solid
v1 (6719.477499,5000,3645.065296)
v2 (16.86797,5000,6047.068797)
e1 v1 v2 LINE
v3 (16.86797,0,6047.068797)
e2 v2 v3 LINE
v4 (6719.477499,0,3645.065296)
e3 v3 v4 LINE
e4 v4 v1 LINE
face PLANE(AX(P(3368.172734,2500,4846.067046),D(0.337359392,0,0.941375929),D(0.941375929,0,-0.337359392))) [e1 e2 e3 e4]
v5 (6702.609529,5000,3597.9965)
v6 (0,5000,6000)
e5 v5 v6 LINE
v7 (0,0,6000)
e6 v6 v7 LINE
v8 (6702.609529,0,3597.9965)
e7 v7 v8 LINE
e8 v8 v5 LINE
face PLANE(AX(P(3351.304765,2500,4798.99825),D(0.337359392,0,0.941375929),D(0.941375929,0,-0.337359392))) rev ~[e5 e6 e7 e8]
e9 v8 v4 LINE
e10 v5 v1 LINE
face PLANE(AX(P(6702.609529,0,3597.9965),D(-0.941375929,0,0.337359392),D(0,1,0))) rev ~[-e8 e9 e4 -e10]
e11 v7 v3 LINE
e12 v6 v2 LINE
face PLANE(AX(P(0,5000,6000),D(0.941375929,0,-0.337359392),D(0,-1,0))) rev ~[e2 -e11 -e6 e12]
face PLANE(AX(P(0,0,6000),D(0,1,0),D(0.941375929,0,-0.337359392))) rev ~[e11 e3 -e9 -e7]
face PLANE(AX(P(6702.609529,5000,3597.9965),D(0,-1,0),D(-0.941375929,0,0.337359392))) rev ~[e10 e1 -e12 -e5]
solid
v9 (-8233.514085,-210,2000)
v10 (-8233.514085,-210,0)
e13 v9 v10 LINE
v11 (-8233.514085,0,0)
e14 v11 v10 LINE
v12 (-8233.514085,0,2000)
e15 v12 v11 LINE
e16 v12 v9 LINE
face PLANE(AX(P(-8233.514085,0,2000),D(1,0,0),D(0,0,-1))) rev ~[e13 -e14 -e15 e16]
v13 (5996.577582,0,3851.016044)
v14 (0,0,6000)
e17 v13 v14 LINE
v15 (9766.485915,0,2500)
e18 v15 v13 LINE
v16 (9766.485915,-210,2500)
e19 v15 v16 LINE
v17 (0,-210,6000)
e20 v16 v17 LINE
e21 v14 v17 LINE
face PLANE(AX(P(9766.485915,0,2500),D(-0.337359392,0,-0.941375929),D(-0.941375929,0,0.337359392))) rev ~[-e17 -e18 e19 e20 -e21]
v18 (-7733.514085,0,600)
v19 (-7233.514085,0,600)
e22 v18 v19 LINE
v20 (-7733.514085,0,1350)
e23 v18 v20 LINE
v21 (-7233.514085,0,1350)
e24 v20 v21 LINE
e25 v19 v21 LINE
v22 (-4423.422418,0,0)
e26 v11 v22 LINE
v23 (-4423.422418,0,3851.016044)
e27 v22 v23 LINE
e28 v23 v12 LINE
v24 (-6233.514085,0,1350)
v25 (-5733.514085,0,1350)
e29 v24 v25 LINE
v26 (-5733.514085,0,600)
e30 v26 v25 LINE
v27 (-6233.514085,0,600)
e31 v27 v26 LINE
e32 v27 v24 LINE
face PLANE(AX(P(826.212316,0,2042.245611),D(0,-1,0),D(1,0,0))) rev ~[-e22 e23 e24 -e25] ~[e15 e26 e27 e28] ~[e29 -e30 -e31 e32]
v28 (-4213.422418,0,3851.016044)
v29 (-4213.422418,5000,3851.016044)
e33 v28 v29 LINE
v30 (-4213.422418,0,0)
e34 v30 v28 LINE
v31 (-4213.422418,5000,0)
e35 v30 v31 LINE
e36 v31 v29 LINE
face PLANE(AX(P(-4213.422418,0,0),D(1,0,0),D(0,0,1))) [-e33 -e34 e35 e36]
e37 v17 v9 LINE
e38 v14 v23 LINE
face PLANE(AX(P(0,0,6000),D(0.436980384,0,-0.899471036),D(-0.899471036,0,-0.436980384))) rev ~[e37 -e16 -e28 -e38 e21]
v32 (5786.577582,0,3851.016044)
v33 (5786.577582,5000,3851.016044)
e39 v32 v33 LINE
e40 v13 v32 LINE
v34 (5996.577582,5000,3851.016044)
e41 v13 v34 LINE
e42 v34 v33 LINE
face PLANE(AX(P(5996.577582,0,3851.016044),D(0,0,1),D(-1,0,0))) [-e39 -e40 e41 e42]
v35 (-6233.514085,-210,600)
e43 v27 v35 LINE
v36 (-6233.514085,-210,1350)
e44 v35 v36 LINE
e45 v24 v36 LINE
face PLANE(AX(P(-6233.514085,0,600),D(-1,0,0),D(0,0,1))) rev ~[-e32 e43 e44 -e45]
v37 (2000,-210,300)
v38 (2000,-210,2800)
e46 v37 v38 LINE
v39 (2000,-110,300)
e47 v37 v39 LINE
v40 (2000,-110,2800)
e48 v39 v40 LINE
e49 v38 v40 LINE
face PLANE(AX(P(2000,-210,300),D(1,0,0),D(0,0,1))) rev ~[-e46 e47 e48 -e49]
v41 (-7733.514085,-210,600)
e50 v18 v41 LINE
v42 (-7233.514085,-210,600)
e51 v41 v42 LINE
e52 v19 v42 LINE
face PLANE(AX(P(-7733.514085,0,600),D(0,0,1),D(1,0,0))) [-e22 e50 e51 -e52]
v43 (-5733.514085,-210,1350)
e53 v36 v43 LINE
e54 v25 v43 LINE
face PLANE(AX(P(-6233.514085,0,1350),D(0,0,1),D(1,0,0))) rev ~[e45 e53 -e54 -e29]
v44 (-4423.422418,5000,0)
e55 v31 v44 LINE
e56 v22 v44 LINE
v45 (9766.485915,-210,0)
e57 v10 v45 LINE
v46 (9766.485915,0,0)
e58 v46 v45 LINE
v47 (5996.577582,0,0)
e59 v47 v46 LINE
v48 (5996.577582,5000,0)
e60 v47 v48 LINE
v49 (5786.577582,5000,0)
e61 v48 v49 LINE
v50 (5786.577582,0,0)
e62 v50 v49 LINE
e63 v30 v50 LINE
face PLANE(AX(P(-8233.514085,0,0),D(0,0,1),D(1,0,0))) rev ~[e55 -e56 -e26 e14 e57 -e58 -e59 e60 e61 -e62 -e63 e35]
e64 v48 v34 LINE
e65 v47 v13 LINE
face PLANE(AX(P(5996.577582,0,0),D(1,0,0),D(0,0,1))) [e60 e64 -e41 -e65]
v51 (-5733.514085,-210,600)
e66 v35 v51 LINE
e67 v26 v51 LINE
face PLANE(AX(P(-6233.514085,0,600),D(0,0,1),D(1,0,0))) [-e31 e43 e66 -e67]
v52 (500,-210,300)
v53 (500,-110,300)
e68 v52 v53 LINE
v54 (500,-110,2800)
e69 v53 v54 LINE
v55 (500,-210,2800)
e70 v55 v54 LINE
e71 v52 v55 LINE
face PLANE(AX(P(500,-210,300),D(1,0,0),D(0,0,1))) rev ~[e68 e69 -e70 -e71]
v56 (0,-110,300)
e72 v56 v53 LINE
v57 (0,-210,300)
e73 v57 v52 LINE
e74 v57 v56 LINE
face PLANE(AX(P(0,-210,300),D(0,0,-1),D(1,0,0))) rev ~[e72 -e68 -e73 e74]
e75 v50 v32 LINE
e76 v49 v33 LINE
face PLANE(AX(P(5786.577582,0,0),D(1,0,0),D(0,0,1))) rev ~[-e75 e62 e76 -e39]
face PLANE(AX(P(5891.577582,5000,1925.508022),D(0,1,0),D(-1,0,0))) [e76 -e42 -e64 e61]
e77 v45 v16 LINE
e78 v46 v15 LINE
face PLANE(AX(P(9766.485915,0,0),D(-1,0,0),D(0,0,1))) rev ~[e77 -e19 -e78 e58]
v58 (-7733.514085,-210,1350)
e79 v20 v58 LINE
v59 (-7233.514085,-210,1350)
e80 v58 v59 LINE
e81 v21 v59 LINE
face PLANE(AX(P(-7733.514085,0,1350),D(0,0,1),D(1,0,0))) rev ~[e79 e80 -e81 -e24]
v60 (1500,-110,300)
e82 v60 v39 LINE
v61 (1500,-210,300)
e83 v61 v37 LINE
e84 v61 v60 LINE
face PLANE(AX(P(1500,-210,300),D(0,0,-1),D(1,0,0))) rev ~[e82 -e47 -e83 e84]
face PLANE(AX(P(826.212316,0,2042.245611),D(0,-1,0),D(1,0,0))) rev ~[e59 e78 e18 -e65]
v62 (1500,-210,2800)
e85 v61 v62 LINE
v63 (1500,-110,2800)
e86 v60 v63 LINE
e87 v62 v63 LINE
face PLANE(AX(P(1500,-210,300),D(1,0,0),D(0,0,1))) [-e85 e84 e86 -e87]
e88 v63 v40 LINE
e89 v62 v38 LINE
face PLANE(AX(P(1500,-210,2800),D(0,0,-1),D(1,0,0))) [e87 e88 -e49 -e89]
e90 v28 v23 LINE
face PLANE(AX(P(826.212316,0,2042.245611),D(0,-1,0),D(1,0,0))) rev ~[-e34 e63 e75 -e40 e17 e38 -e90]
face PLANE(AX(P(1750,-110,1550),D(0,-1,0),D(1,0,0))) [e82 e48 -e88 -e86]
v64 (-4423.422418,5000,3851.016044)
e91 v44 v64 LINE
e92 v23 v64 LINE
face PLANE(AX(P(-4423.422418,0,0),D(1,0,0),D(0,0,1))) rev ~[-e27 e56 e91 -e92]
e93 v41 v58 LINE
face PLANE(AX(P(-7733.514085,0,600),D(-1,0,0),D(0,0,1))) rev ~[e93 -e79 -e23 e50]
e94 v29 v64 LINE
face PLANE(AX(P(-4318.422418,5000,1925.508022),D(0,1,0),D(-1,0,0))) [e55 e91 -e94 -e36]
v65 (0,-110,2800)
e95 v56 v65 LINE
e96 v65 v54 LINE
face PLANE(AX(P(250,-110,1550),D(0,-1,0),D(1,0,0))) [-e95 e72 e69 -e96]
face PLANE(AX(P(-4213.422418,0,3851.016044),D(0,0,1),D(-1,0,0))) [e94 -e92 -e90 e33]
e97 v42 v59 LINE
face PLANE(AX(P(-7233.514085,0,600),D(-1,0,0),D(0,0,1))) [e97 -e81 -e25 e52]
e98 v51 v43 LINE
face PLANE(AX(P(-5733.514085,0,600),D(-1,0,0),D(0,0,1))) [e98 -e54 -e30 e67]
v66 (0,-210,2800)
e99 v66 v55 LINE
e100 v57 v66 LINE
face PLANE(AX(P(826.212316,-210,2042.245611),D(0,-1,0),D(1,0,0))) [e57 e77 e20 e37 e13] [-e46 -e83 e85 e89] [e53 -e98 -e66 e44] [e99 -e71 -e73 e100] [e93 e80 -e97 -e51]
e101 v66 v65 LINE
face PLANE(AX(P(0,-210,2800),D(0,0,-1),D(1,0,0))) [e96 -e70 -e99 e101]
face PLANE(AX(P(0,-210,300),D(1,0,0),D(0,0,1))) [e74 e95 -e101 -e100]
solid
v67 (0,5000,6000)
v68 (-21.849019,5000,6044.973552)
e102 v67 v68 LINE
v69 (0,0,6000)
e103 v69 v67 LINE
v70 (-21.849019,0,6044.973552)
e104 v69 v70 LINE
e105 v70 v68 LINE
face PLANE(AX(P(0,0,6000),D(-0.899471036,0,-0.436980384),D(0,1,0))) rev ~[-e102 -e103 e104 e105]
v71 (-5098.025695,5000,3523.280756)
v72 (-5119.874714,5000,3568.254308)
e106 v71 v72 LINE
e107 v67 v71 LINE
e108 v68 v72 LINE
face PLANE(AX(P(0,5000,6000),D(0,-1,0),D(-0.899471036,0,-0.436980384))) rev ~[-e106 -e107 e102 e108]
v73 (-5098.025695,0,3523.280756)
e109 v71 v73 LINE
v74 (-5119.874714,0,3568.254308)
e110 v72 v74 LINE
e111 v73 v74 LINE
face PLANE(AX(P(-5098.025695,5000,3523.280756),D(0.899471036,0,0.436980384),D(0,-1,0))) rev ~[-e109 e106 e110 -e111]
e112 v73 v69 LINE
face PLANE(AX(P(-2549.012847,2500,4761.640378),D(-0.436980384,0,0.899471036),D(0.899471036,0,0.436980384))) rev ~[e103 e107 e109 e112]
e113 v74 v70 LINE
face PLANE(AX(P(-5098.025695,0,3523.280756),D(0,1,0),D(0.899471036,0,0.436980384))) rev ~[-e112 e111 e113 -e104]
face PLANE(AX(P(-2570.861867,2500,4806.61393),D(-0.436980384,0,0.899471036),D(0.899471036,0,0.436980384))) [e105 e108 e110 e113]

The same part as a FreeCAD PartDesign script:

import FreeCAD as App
import Part
import Sketcher
from FreeCAD import Vector
Q = App.Units.Quantity


def add_polygon(sketch, points):
    """Adds a closed chain of lines whose ends are joined by coincident constraints."""
    first, n = sketch.GeometryCount, len(points)
    for a, b in zip(points, points[1:] + points[:1]):
        sketch.addGeometry(Part.LineSegment(App.Vector(*a, 0), App.Vector(*b, 0)), False)
    for i in range(n):
        sketch.addConstraint(Sketcher.Constraint("Coincident", first + i, 2, first + (i + 1) % n, 1))

doc = App.newDocument("Part")
body = doc.addObject("PartDesign::Body", "Body")

sketch1 = doc.addObject("Sketcher::SketchObject", "Sketch")
body.addObject(sketch1)
sketch1.AttachmentSupport = (doc.XZ_Plane, [""])
sketch1.MapMode = "FlatFace"
add_polygon(sketch1, [(-8234, 0), (9766, 0), (9766, 2500), (0, 6000), (-8234, 2000)])
add_polygon(sketch1, [(-7234, 600), (-7734, 600), (-7734, 1350), (-7234, 1350)])
add_polygon(sketch1, [(-5734, 600), (-6234, 600), (-6234, 1350), (-5734, 1350)])
sketch1.addConstraint(Sketcher.Constraint("Horizontal", 0))
sketch1.addConstraint(Sketcher.Constraint("Vertical", 1))
sketch1.addConstraint(Sketcher.Constraint("Vertical", 4))
sketch1.addConstraint(Sketcher.Constraint("Horizontal", 5))
sketch1.addConstraint(Sketcher.Constraint("Vertical", 6))
sketch1.addConstraint(Sketcher.Constraint("Horizontal", 7))
sketch1.addConstraint(Sketcher.Constraint("Vertical", 8))
sketch1.addConstraint(Sketcher.Constraint("Horizontal", 9))
sketch1.addConstraint(Sketcher.Constraint("Vertical", 10))
sketch1.addConstraint(Sketcher.Constraint("Horizontal", 11))
sketch1.addConstraint(Sketcher.Constraint("Vertical", 12))
sketch1.addConstraint(Sketcher.Constraint("PointOnObject", 0, 2, -1))
sketch1.addConstraint(Sketcher.Constraint("PointOnObject", 2, 2, -2))
sketch1.addConstraint(Sketcher.Constraint("Horizontal", 8, 2, 9, 2))
sketch1.addConstraint(Sketcher.Constraint("Horizontal", 7, 2, 10, 2))
sketch1.addConstraint(Sketcher.Constraint("Equal", 7, 9))
sketch1.addConstraint(Sketcher.Constraint("DistanceX", 0, 1, 0, 2, Q("18000 mm")))
sketch1.addConstraint(Sketcher.Constraint("DistanceX", 5, 2, 5, 1, Q("500 mm")))
sketch1.addConstraint(Sketcher.Constraint("DistanceY", 1, 1, 1, 2, Q("2500 mm")))
sketch1.addConstraint(Sketcher.Constraint("DistanceY", 4, 2, 4, 1, Q("2000 mm")))
sketch1.addConstraint(Sketcher.Constraint("DistanceY", 6, 1, 6, 2, Q("750 mm")))
sketch1.addConstraint(Sketcher.Constraint("DistanceY", -1, 1, 2, 2, Q("6000 mm")))
sketch1.addConstraint(Sketcher.Constraint("DistanceY", -1, 1, 5, 2, Q("600 mm")))
sketch1.addConstraint(Sketcher.Constraint("DistanceX", 4, 2, 5, 2, Q("500 mm")))
sketch1.addConstraint(Sketcher.Constraint("DistanceX", 8, 2, 9, 2, Q("1000 mm")))
sketch1.addConstraint(Sketcher.Constraint("Distance", 2, Q("10374.692628 mm")))
pad1 = doc.addObject("PartDesign::Pad", "Pad")
body.addObject(pad1)
pad1.Profile = sketch1
pad1.Length = 210

sketch2 = doc.addObject("Sketcher::SketchObject", "Sketch001")
body.addObject(sketch2)
sketch2.AttachmentSupport = (doc.XZ_Plane, [""])
sketch2.MapMode = "FlatFace"
sketch2.AttachmentOffset = App.Placement(Vector(0, 0, 210), App.Rotation())
add_polygon(sketch2, [(0, 2800), (0, 300), (500, 300), (500, 2800)])
add_polygon(sketch2, [(1500, 2800), (1500, 300), (2000, 300), (2000, 2800)])
sketch2.addConstraint(Sketcher.Constraint("Vertical", 0))
sketch2.addConstraint(Sketcher.Constraint("Horizontal", 1))
sketch2.addConstraint(Sketcher.Constraint("Vertical", 2))
sketch2.addConstraint(Sketcher.Constraint("Horizontal", 3))
sketch2.addConstraint(Sketcher.Constraint("Vertical", 4))
sketch2.addConstraint(Sketcher.Constraint("Horizontal", 5))
sketch2.addConstraint(Sketcher.Constraint("Vertical", 6))
sketch2.addConstraint(Sketcher.Constraint("Horizontal", 7))
sketch2.addConstraint(Sketcher.Constraint("PointOnObject", 0, 2, -2))
sketch2.addConstraint(Sketcher.Constraint("Horizontal", 1, 2, 4, 2))
sketch2.addConstraint(Sketcher.Constraint("Horizontal", 3, 2, 6, 2))
sketch2.addConstraint(Sketcher.Constraint("Equal", 3, 5))
sketch2.addConstraint(Sketcher.Constraint("DistanceX", 1, 1, 1, 2, Q("500 mm")))
sketch2.addConstraint(Sketcher.Constraint("DistanceY", 0, 2, 0, 1, Q("2500 mm")))
sketch2.addConstraint(Sketcher.Constraint("DistanceY", -1, 1, 0, 2, Q("300 mm")))
sketch2.addConstraint(Sketcher.Constraint("DistanceX", -1, 1, 4, 2, Q("1500 mm")))
pocket1 = doc.addObject("PartDesign::Pocket", "Pocket")
body.addObject(pocket1)
pocket1.Profile = sketch2
pocket1.Length = 100

sketch3 = doc.addObject("Sketcher::SketchObject", "Sketch002")
body.addObject(sketch3)
sketch3.AttachmentSupport = (doc.XZ_Plane, [""])
sketch3.MapMode = "FlatFace"
add_polygon(sketch3, [(-4213, 3851), (-4213, 0), (-4423, 0), (-4423, 3851)])
add_polygon(sketch3, [(5997, 3851), (5997, 0), (5787, 0), (5787, 3851)])
sketch3.addConstraint(Sketcher.Constraint("Vertical", 0))
sketch3.addConstraint(Sketcher.Constraint("Horizontal", 1))
sketch3.addConstraint(Sketcher.Constraint("Vertical", 2))
sketch3.addConstraint(Sketcher.Constraint("Horizontal", 3))
sketch3.addConstraint(Sketcher.Constraint("Vertical", 4))
sketch3.addConstraint(Sketcher.Constraint("Horizontal", 5))
sketch3.addConstraint(Sketcher.Constraint("Vertical", 6))
sketch3.addConstraint(Sketcher.Constraint("Horizontal", 7))
sketch3.addConstraint(Sketcher.Constraint("PointOnObject", 0, 2, -1))
sketch3.addConstraint(Sketcher.Constraint("PointOnObject", 4, 2, -1))
sketch3.addConstraint(Sketcher.Constraint("Horizontal", 3, 2, 6, 2))
sketch3.addConstraint(Sketcher.Constraint("Equal", 3, 5))
sketch3.addConstraint(Sketcher.Constraint("DistanceX", 1, 2, 1, 1, Q("210 mm")))
sketch3.addConstraint(Sketcher.Constraint("DistanceX", 0, 2, 4, 2, Q("10210 mm")))
sketch3.addConstraint(Sketcher.Constraint("DistanceY", 0, 2, 0, 1, Q("3851.016044 mm")))
sketch3.addConstraint(Sketcher.Constraint("DistanceX", 0, 2, -1, 1, Q("4213.422418 mm")))
pad2 = doc.addObject("PartDesign::Pad", "Pad001")
body.addObject(pad2)
pad2.Profile = sketch3
pad2.Length = 5000
pad2.Reversed = True
body2 = doc.addObject("PartDesign::Body", "Body001")

sketch4 = doc.addObject("Sketcher::SketchObject", "Sketch003")
body2.addObject(sketch4)
sketch4.Placement = App.Placement(Vector(-2358.30719, 0, 4854.288866), App.Rotation(Vector(0.899471036, 0, 0.436980384), Vector(0, 1.000000001, 0), Vector(-0.436980384, 0, 0.899471036), "ZXY"))
add_polygon(sketch4, [(2622, 0), (2622, 5000), (-3046, 5000), (-3046, 0)])
sketch4.addConstraint(Sketcher.Constraint("Vertical", 0))
sketch4.addConstraint(Sketcher.Constraint("Horizontal", 1))
sketch4.addConstraint(Sketcher.Constraint("Vertical", 2))
sketch4.addConstraint(Sketcher.Constraint("Horizontal", 3))
sketch4.addConstraint(Sketcher.Constraint("PointOnObject", 2, 2, -1))
sketch4.addConstraint(Sketcher.Constraint("DistanceX", 1, 2, 1, 1, Q("5667.804181 mm")))
sketch4.addConstraint(Sketcher.Constraint("DistanceY", 0, 1, 0, 2, Q("5000.000006 mm")))
sketch4.addConstraint(Sketcher.Constraint("DistanceX", -1, 1, 0, 2, Q("2621.882303 mm")))
pad3 = doc.addObject("PartDesign::Pad", "Pad002")
body2.addObject(pad3)
pad3.Profile = sketch4
pad3.Length = 50
body3 = doc.addObject("PartDesign::Body", "Body002")

sketch5 = doc.addObject("Sketcher::SketchObject", "Sketch004")
body3.addObject(sketch5)
sketch5.Placement = App.Placement(Vector(1905.492069, 0, 5317.131843), App.Rotation(Vector(0.941375929, 0, -0.337359392), Vector(0, 0.999999999, 0), Vector(0.337359392, 0, 0.941375929), "ZXY"))
add_polygon(sketch5, [(-2024, 5000), (-2024, 0), (5096, 0), (5096, 5000)])
sketch5.addConstraint(Sketcher.Constraint("Vertical", 0))
sketch5.addConstraint(Sketcher.Constraint("Horizontal", 1))
sketch5.addConstraint(Sketcher.Constraint("Vertical", 2))
sketch5.addConstraint(Sketcher.Constraint("Horizontal", 3))
sketch5.addConstraint(Sketcher.Constraint("PointOnObject", 0, 2, -1))
sketch5.addConstraint(Sketcher.Constraint("DistanceX", 1, 1, 1, 2, Q("7120.013709 mm")))
sketch5.addConstraint(Sketcher.Constraint("DistanceY", 0, 2, 0, 1, Q("4999.999991 mm")))
sketch5.addConstraint(Sketcher.Constraint("DistanceX", 0, 2, -1, 1, Q("2024.156352 mm")))
pad4 = doc.addObject("PartDesign::Pad", "Pad003")
body3.addObject(pad4)
pad4.Profile = sketch5
pad4.Length = 50

doc.recompute()
